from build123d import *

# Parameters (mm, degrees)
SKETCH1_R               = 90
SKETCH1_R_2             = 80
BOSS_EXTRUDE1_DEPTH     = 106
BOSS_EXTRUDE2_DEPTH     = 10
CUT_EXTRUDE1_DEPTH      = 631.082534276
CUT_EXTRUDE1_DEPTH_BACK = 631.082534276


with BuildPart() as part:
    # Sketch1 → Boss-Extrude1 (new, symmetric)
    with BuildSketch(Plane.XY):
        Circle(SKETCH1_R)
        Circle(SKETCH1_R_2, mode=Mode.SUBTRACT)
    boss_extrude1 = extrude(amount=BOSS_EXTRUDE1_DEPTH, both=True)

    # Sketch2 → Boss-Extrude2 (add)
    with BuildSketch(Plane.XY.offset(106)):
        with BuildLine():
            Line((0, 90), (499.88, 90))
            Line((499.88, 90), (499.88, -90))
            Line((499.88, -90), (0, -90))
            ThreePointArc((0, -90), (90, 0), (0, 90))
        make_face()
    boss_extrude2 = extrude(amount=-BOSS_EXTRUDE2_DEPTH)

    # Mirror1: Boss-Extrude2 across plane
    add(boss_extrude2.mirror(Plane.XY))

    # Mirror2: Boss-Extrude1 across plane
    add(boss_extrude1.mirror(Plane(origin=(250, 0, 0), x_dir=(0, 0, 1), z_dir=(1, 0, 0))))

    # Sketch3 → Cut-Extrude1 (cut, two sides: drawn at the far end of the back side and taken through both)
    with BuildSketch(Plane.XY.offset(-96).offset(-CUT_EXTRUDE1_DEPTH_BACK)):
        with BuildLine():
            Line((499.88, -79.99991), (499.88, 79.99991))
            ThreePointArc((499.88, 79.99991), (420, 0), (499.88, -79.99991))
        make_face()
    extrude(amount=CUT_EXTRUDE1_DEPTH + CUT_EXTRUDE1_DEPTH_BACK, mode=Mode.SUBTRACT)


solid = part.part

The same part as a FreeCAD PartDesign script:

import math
import FreeCAD as App
import Part
import Sketcher

doc = App.newDocument("Part")
body = doc.addObject("PartDesign::Body", "Body")

sketch1 = body.newObject("Sketcher::SketchObject", "Sketch")
sketch1.AttachmentSupport = (doc.getObject("XY_Plane"), [""])
sketch1.MapMode = "FlatFace"
sketch1.addGeometry([
    Part.Circle(App.Vector(0, 0, 0), App.Vector(0, 0, 1), 90),
    Part.Circle(App.Vector(0, 0, 0), App.Vector(0, 0, 1), 80),
], False)
sketch1.addConstraint([
    Sketcher.Constraint("Coincident", 0, 3, -1, 1),
    Sketcher.Constraint("Coincident", 1, 3, -1, 1),
    Sketcher.Constraint("Diameter", 0, 180.0),
    Sketcher.Constraint("Diameter", 1, 160.0),
])
pad1 = body.newObject("PartDesign::Pad", "Pad")
pad1.Profile = sketch1
pad1.Length = 212
pad1.Midplane = True

sketch2 = body.newObject("Sketcher::SketchObject", "Sketch001")
sketch2.AttachmentSupport = (doc.getObject("XY_Plane"), [""])
sketch2.MapMode = "FlatFace"
sketch2.AttachmentOffset = App.Placement(App.Vector(0, 0, 106), App.Rotation())
sketch2.addGeometry([
    Part.LineSegment(App.Vector(499.88, 90, 0), App.Vector(0, 90, 0)),
    Part.ArcOfCircle(Part.Circle(App.Vector(0, 0, 0), App.Vector(0, 0, 1), 90), math.radians(-90), math.radians(90)),
    Part.LineSegment(App.Vector(0, -90, 0), App.Vector(499.88, -90, 0)),
    Part.LineSegment(App.Vector(499.88, -90, 0), App.Vector(499.88, 90, 0)),
], False)
sketch2.addConstraint([
    Sketcher.Constraint("Tangent", 0, 2, 1, 2),
    Sketcher.Constraint("Tangent", 1, 1, 2, 1),
    Sketcher.Constraint("Coincident", 2, 2, 3, 1),
    Sketcher.Constraint("Coincident", 3, 2, 0, 1),
    Sketcher.Constraint("Horizontal", 0),
    Sketcher.Constraint("Horizontal", 2),
    Sketcher.Constraint("Vertical", 3),
    Sketcher.Constraint("Coincident", 1, 3, -1, 1),
    Sketcher.Constraint("Radius", 1, 90.0),
    Sketcher.Constraint("DistanceX", 0, 2, 0, 1, 499.88),
])
pad2 = body.newObject("PartDesign::Pad", "Pad001")
pad2.Profile = sketch2
pad2.Length = 10
pad2.Reversed = True
doc.recompute()

mirrored = body.newObject("PartDesign::Mirrored", "Mirrored")
mirrored.Originals = [pad2]
mirrored.MirrorPlane = (doc.getObject("XY_Plane"), [""])
body.Tip = mirrored
doc.recompute()

datumplane = body.newObject("PartDesign::Plane", "DatumPlane")
datumplane.AttachmentSupport = (doc.getObject("YZ_Plane"), [""])
datumplane.MapMode = "FlatFace"
datumplane.AttachmentOffset = App.Placement(App.Vector(0, 0, 250), App.Rotation())
mirrored2 = body.newObject("PartDesign::Mirrored", "Mirrored001")
mirrored2.Originals = [pad1]
mirrored2.MirrorPlane = (datumplane, [""])
body.Tip = mirrored2

sketch3 = body.newObject("Sketcher::SketchObject", "Sketch002")
sketch3.AttachmentSupport = (doc.getObject("XY_Plane"), [""])
sketch3.MapMode = "FlatFace"
sketch3.AttachmentOffset = App.Placement(App.Vector(0, 0, -96), App.Rotation())
sketch3.addGeometry([
    Part.LineSegment(App.Vector(499.88, -79.99991, 0), App.Vector(499.88, 79.99991, 0)),
    Part.ArcOfCircle(Part.Circle(App.Vector(500, 0, 0), App.Vector(0, 0, 1), 80), math.radians(90.085944), math.radians(269.914056)),
], False)
sketch3.addConstraint([
    Sketcher.Constraint("Coincident", 0, 1, 1, 2),
    Sketcher.Constraint("Coincident", 1, 1, 0, 2),
    Sketcher.Constraint("Vertical", 0),
    Sketcher.Constraint("PointOnObject", 1, 3, -1),
    Sketcher.Constraint("Radius", 1, 80.0),
    Sketcher.Constraint("DistanceX", -1, 1, 1, 3, 500.0),
    Sketcher.Constraint("DistanceX", -1, 1, 0, 1, 499.88),
])
pocket1 = body.newObject("PartDesign::Pocket", "Pocket")
pocket1.Profile = sketch3
pocket1.Type = "ThroughAll"
pocket1.Midplane = True

doc.recompute()
